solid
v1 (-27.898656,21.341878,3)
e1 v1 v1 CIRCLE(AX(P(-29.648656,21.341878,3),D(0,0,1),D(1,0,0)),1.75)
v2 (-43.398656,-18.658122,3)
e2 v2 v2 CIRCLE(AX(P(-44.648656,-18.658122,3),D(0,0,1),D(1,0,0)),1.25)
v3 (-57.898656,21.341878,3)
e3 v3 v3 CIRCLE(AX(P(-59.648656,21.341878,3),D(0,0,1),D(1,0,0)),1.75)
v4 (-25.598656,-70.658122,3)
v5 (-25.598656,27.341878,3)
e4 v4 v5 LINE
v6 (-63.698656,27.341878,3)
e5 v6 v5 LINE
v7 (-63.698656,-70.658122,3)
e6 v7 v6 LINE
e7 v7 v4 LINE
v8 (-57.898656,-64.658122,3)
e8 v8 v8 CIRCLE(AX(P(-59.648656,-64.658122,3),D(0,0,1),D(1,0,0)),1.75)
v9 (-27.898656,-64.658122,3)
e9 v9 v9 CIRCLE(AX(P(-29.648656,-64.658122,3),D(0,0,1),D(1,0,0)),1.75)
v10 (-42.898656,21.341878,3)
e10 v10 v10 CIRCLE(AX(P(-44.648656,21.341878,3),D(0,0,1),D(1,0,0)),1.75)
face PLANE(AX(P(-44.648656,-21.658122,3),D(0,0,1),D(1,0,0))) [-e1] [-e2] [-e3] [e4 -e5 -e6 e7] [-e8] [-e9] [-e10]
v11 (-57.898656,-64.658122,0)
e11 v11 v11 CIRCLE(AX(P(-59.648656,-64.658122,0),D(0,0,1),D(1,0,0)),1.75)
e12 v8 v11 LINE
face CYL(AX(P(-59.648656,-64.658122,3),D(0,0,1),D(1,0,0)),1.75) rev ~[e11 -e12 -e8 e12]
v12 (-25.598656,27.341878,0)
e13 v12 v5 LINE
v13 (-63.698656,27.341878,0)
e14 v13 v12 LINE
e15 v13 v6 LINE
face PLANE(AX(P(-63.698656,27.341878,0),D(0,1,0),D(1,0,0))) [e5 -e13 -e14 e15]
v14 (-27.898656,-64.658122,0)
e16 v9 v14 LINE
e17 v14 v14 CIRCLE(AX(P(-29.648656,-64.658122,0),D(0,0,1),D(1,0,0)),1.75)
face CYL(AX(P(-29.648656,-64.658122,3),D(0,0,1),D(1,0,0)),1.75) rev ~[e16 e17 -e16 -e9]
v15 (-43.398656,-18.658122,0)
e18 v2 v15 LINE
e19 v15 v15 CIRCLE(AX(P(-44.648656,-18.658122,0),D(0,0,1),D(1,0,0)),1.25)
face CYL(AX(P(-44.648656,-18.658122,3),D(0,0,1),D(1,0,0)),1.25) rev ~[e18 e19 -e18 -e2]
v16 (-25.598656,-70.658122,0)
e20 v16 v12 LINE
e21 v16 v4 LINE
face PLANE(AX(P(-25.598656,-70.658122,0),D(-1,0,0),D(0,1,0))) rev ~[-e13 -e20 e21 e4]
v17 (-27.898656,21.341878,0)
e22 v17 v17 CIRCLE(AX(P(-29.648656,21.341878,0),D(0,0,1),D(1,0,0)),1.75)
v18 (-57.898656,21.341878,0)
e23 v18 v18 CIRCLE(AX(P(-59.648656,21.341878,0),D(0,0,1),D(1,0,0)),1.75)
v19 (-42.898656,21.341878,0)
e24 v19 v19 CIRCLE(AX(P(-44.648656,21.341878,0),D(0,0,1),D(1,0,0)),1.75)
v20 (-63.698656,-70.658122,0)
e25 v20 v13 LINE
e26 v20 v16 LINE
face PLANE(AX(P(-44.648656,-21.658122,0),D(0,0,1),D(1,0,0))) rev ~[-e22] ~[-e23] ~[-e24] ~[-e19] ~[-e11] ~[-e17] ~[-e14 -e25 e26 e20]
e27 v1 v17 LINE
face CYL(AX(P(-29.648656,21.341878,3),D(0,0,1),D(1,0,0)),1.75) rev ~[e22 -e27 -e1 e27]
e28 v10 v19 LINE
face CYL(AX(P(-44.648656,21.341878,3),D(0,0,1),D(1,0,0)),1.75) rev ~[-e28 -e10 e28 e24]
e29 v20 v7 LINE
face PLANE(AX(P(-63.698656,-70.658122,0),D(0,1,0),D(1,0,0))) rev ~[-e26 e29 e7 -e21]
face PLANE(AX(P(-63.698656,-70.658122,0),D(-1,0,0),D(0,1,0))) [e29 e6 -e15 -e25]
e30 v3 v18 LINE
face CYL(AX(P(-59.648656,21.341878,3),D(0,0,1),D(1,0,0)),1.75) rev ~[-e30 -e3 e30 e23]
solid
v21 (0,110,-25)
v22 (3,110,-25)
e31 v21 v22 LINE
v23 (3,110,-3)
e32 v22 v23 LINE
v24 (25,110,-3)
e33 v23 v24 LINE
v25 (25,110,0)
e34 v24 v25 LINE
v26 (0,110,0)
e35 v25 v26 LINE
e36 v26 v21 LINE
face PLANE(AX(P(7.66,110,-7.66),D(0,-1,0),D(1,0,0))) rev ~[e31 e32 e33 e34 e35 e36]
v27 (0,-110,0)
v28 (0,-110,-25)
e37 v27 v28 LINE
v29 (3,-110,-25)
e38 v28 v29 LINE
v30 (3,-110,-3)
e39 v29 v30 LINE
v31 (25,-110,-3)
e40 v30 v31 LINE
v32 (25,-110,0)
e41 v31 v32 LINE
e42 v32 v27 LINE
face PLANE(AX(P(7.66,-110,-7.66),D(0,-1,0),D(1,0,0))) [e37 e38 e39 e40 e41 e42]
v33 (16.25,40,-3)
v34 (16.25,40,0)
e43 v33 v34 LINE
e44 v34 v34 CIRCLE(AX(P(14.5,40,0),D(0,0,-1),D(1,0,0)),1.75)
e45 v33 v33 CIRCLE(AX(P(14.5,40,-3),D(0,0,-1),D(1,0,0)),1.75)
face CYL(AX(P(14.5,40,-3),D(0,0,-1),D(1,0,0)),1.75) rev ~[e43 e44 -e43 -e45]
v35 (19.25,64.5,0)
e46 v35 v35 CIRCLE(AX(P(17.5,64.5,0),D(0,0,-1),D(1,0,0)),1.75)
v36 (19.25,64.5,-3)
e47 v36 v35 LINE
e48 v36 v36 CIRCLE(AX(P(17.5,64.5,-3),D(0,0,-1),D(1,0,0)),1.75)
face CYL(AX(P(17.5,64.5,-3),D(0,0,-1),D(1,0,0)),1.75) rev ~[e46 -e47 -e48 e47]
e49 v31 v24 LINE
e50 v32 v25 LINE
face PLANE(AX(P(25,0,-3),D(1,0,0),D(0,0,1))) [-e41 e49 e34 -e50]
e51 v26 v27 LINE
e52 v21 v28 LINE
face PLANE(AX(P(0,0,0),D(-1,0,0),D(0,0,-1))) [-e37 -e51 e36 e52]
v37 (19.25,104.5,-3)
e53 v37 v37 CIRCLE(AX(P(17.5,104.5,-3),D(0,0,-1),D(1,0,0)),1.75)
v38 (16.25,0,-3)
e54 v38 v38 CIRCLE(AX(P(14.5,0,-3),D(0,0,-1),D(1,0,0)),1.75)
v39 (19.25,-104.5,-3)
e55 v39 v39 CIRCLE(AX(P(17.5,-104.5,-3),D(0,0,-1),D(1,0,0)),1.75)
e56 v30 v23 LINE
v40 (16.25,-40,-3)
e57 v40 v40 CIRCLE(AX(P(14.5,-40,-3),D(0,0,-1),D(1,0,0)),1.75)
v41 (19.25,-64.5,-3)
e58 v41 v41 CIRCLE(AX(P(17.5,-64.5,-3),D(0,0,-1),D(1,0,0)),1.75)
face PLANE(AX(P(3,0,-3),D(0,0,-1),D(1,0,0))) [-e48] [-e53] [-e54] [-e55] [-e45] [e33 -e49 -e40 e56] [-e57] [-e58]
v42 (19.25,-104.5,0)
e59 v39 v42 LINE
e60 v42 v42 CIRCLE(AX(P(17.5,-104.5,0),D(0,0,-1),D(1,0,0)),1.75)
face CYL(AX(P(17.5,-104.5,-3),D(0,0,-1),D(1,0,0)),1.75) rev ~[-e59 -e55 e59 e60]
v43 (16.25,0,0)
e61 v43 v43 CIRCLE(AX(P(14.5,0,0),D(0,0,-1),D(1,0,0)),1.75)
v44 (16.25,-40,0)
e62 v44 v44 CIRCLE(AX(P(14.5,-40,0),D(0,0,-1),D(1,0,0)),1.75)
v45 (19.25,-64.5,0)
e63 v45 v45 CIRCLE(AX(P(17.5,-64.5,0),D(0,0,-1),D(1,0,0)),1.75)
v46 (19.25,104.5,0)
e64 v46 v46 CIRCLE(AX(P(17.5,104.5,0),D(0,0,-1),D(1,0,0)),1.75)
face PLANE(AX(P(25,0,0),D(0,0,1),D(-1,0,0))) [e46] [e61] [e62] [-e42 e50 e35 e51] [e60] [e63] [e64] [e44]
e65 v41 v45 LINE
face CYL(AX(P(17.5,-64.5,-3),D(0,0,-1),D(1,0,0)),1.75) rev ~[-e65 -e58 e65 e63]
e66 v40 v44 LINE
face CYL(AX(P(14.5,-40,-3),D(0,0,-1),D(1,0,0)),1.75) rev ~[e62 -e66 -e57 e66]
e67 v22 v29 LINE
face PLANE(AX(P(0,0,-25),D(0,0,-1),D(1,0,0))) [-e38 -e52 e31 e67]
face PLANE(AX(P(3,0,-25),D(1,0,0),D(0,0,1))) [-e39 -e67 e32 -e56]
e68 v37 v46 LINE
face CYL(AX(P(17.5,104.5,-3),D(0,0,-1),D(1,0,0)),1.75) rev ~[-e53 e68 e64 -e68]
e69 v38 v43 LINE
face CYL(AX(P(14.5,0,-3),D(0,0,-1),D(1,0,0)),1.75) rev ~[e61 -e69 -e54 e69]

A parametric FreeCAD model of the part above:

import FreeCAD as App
import Part
import Sketcher
from FreeCAD import Vector
Q = App.Units.Quantity


def add_polygon(sketch, points):
    """Adds a closed chain of lines whose ends are joined by coincident constraints."""
    first, n = sketch.GeometryCount, len(points)
    for a, b in zip(points, points[1:] + points[:1]):
        sketch.addGeometry(Part.LineSegment(App.Vector(*a, 0), App.Vector(*b, 0)), False)
    for i in range(n):
        sketch.addConstraint(Sketcher.Constraint("Coincident", first + i, 2, first + (i + 1) % n, 1))

doc = App.newDocument("Part")
body = doc.addObject("PartDesign::Body", "Body")

# Sketch on XZ plane
sketch1 = doc.addObject("Sketcher::SketchObject", "Sketch")
body.addObject(sketch1)
sketch1.AttachmentSupport = (doc.XZ_Plane, [""])
sketch1.MapMode = "FlatFace"
add_polygon(sketch1, [(25, 0), (0, 0), (0, -25), (3, -25), (3, -3), (25, -3)])  # lines 0-5
sketch1.addConstraint([
    Sketcher.Constraint("Horizontal", 0),
    Sketcher.Constraint("Vertical", 1),
    Sketcher.Constraint("Horizontal", 2),
    Sketcher.Constraint("Vertical", 3),
    Sketcher.Constraint("Horizontal", 4),
    Sketcher.Constraint("Vertical", 5),
    Sketcher.Constraint("Coincident", 0, 2, -1, 1),
    Sketcher.Constraint("Equal", 0, 1),
    Sketcher.Constraint("Equal", 4, 3),
    Sketcher.Constraint("DistanceX", 0, 2, 0, 1, Q("25 mm")),
    Sketcher.Constraint("DistanceX", 2, 1, 2, 2, Q("3 mm")),
])
pad1 = doc.addObject("PartDesign::Pad", "Pad")
body.addObject(pad1)
pad1.Profile = sketch1
pad1.Length = 220
pad1.Midplane = True

# Sketch on XY plane
sketch2 = doc.addObject("Sketcher::SketchObject", "Sketch001")
body.addObject(sketch2)
sketch2.AttachmentSupport = (doc.XY_Plane, [""])
sketch2.MapMode = "FlatFace"
sketch2.AttachmentOffset = App.Placement(Vector(0, 0, -3), App.Rotation())
sketch2.addGeometry([
    Part.Circle(Vector(17.5, -104.5, 0), Vector(0, 0, 1), 1.8),
    Part.Circle(Vector(17.5, 104.5, 0), Vector(0, 0, 1), 1.8),
    Part.Circle(Vector(17.5, -64.5, 0), Vector(0, 0, 1), 1.8),
    Part.Circle(Vector(17.5, 64.5, 0), Vector(0, 0, 1), 1.8),
], False)
sketch2.addConstraint([
    Sketcher.Constraint("Equal", 0, 1),
    Sketcher.Constraint("Equal", 1, 2),
    Sketcher.Constraint("Equal", 2, 3),
    Sketcher.Constraint("Symmetric", 0, 3, 1, 3, -1),
    Sketcher.Constraint("Symmetric", 2, 3, 3, 3, -1),
    Sketcher.Constraint("Vertical", 1, 3, 2, 3),
    Sketcher.Constraint("Diameter", 0, Q("3.5 mm")),
    Sketcher.Constraint("DistanceY", 0, 3, 1, 3, Q("209 mm")),
    Sketcher.Constraint("DistanceY", 0, 3, 2, 3, Q("40 mm")),
    Sketcher.Constraint("DistanceX", -1, 1, 0, 3, Q("17.5 mm")),
])
pocket1 = doc.addObject("PartDesign::Pocket", "Pocket")
body.addObject(pocket1)
pocket1.Profile = sketch2
pocket1.Type = "ThroughAll"
pocket1.Reversed = True

# Sketch on XY plane
sketch3 = doc.addObject("Sketcher::SketchObject", "Sketch002")
body.addObject(sketch3)
sketch3.AttachmentSupport = (doc.XY_Plane, [""])
sketch3.MapMode = "FlatFace"
sketch3.AttachmentOffset = App.Placement(Vector(0, 0, -3), App.Rotation())
sketch3.addGeometry([
    Part.Circle(Vector(14.5, -40, 0), Vector(0, 0, 1), 1.8),
    Part.Circle(Vector(14.5, 0, 0), Vector(0, 0, 1), 1.8),
    Part.Circle(Vector(14.5, 40, 0), Vector(0, 0, 1), 1.8),
], False)
sketch3.addConstraint([
    Sketcher.Constraint("Equal", 0, 1),
    Sketcher.Constraint("Equal", 1, 2),
    Sketcher.Constraint("Symmetric", 0, 3, 2, 3, -1),
    Sketcher.Constraint("PointOnObject", 1, 3, -1),
    Sketcher.Constraint("Vertical", 0, 3, 1, 3),
    Sketcher.Constraint("Diameter", 0, Q("3.5 mm")),
    Sketcher.Constraint("DistanceY", 0, 3, -1, 1, Q("40 mm")),
    Sketcher.Constraint("DistanceX", -1, 1, 0, 3, Q("14.5 mm")),
])
pocket2 = doc.addObject("PartDesign::Pocket", "Pocket001")
body.addObject(pocket2)
pocket2.Profile = sketch3
pocket2.Type = "ThroughAll"
pocket2.Reversed = True
body2 = doc.addObject("PartDesign::Body", "Body001")

# Sketch on XY plane
sketch4 = doc.addObject("Sketcher::SketchObject", "Sketch003")
body2.addObject(sketch4)
sketch4.AttachmentSupport = (doc.getObject("XY_Plane001"), [""])
sketch4.MapMode = "FlatFace"
add_polygon(sketch4, [(-64, 27), (-64, -71), (-26, -71), (-26, 27)])  # lines 0-3
sketch4.addConstraint([
    Sketcher.Constraint("Vertical", 0),
    Sketcher.Constraint("Horizontal", 1),
    Sketcher.Constraint("Vertical", 2),
    Sketcher.Constraint("Horizontal", 3),
    Sketcher.Constraint("DistanceY", 0, 2, 0, 1, Q("98 mm")),
    Sketcher.Constraint("DistanceX", 1, 1, 1, 2, Q("38.1 mm")),
    Sketcher.Constraint("DistanceY", -1, 1, 2, 2, Q("27.341878 mm")),
    Sketcher.Constraint("DistanceX", 0, 2, -1, 1, Q("63.698656 mm")),
])
pad2 = doc.addObject("PartDesign::Pad", "Pad001")
body2.addObject(pad2)
pad2.Profile = sketch4
pad2.Length = 3

# Sketch on XY plane
sketch5 = doc.addObject("Sketcher::SketchObject", "Sketch004")
body2.addObject(sketch5)
sketch5.AttachmentSupport = (doc.getObject("XY_Plane001"), [""])
sketch5.MapMode = "FlatFace"
sketch5.AttachmentOffset = App.Placement(Vector(0, 0, 3), App.Rotation())
sketch5.addGeometry([
    Part.Circle(Vector(-59.6, 21.3, 0), Vector(0, 0, 1), 1.8),  # 0
    Part.Circle(Vector(-29.6, 21.3, 0), Vector(0, 0, 1), 1.8),  # 1
    Part.Circle(Vector(-59.6, -64.7, 0), Vector(0, 0, 1), 1.8),  # 2
    Part.Circle(Vector(-29.6, -64.7, 0), Vector(0, 0, 1), 1.8),  # 3
    Part.Circle(Vector(-44.6, 21.3, 0), Vector(0, 0, 1), 1.8),  # 4
    Part.Circle(Vector(-44.6, -18.7, 0), Vector(0, 0, 1), 1.2),  # 5
], False)
sketch5.addConstraint([
    Sketcher.Constraint("Equal", 0, 1),
    Sketcher.Constraint("Equal", 1, 2),
    Sketcher.Constraint("Equal", 2, 3),
    Sketcher.Constraint("Equal", 3, 4),
    Sketcher.Constraint("Horizontal", 0, 3, 1, 3),
    Sketcher.Constraint("Horizontal", 2, 3, 3, 3),
    Sketcher.Constraint("Horizontal", 1, 3, 4, 3),
    Sketcher.Constraint("Vertical", 0, 3, 2, 3),
    Sketcher.Constraint("Vertical", 1, 3, 3, 3),
    Sketcher.Constraint("Vertical", 4, 3, 5, 3),
    Sketcher.Constraint("Diameter", 0, Q("3.5 mm")),
    Sketcher.Constraint("Diameter", 5, Q("2.5 mm")),
    Sketcher.Constraint("DistanceX", 0, 3, 1, 3, Q("30 mm")),
    Sketcher.Constraint("DistanceY", 2, 3, 0, 3, Q("86 mm")),
    Sketcher.Constraint("DistanceX", 0, 3, 4, 3, Q("15 mm")),
    Sketcher.Constraint("DistanceY", 5, 3, 4, 3, Q("40 mm")),
    Sketcher.Constraint("DistanceY", -1, 1, 0, 3, Q("21.341878 mm")),
    Sketcher.Constraint("DistanceX", 0, 3, -1, 1, Q("59.648656 mm")),
])
pocket3 = doc.addObject("PartDesign::Pocket", "Pocket002")
body2.addObject(pocket3)
pocket3.Profile = sketch5
pocket3.Type = "ThroughAll"

doc.recompute()
